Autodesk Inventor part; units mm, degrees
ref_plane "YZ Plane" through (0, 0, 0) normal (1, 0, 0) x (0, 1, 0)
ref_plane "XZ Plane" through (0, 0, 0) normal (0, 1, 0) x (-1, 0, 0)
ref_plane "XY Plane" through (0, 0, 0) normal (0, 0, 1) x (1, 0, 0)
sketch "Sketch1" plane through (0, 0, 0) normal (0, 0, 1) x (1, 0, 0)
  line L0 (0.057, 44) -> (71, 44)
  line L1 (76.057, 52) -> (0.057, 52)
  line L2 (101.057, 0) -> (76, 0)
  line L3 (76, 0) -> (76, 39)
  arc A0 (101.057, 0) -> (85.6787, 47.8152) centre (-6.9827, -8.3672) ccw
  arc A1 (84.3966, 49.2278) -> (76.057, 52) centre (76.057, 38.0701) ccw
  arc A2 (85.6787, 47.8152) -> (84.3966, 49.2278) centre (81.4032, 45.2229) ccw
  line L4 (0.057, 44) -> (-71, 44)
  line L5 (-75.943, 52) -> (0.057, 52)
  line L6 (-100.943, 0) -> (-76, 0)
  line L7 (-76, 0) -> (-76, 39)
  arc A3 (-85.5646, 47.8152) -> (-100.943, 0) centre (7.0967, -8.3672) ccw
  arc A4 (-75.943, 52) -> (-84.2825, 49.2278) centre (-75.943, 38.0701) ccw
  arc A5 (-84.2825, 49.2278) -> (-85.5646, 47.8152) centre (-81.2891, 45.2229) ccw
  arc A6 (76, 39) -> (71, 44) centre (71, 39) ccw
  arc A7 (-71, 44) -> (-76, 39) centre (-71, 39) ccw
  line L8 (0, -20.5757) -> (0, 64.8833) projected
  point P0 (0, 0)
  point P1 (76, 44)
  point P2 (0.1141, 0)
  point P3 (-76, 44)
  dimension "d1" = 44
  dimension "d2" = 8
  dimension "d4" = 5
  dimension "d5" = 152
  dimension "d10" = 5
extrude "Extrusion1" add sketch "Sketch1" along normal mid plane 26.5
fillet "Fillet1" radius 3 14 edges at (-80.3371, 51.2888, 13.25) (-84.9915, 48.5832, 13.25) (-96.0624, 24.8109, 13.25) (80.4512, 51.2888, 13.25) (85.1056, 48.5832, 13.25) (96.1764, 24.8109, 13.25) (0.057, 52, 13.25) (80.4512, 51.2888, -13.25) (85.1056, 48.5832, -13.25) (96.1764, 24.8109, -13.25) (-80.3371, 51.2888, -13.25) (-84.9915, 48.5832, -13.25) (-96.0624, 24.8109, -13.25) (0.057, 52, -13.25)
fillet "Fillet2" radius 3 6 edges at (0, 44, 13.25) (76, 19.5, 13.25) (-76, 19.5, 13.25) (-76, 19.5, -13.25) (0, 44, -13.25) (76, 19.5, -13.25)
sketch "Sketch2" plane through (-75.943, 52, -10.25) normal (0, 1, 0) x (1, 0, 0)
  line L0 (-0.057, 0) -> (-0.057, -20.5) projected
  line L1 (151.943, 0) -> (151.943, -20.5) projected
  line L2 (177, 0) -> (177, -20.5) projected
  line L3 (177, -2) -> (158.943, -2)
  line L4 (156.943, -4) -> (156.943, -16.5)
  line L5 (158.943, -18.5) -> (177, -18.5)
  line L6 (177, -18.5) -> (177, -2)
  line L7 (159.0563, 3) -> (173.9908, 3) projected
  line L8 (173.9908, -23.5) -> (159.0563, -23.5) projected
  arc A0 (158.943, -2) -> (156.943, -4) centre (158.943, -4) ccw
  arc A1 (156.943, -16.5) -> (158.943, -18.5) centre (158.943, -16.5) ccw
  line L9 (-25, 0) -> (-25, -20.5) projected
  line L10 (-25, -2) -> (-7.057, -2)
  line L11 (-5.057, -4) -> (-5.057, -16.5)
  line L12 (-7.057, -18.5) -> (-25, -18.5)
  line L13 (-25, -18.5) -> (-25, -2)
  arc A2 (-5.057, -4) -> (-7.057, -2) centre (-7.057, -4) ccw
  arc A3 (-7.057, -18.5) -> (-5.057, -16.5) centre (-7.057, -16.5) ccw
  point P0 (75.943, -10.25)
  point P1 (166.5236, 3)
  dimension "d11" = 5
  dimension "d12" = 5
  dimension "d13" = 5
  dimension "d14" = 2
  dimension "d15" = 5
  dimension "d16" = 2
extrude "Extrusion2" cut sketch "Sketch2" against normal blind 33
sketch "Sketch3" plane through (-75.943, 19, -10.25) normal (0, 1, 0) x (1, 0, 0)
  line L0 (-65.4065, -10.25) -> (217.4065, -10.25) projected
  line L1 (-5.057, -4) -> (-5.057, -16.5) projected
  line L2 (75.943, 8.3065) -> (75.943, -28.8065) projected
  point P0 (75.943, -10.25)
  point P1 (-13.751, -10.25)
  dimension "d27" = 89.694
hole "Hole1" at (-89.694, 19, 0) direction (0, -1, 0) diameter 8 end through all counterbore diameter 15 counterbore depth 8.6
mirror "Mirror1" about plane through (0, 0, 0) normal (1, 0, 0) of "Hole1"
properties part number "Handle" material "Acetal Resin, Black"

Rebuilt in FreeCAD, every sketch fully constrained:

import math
import FreeCAD as App
import Part
import Sketcher

V = App.Vector
Q = App.Units.Quantity


def edges_at(feature, points):
    """Names of the edges that pass closest to the given points."""
    edges = feature.Shape.Edges
    near = lambda p: min(range(len(edges)), key=lambda i: edges[i].distToShape(Part.Vertex(*p))[0])
    return sorted({f"Edge{near(p) + 1}" for p in points})

doc = App.newDocument("Part")
body = doc.addObject("PartDesign::Body", "Body")

# Sketch on XY plane
sketch1 = body.newObject("Sketcher::SketchObject", "Sketch")
sketch1.AttachmentSupport = (doc.getObject("XY_Plane"), [""])
sketch1.MapMode = "FlatFace"
sketch1.addGeometry([
    Part.ArcOfCircle(Part.Circle(V(71, 39, 0), V(0, 0, 1), 5), math.radians(0), math.radians(90)),  # 0
    Part.LineSegment(V(76, 39, 0), V(76, 0, 0)),  # 1
    Part.LineSegment(V(76, 0, 0), V(101.057, 0, 0)),  # 2
    Part.ArcOfCircle(Part.Circle(V(-6.9827, -8.3672, 0), V(0, 0, 1), 108.363217), math.radians(4.428467), math.radians(31.229244)),  # 3
    Part.ArcOfCircle(Part.Circle(V(81.4032, 45.2229, 0), V(0, 0, 1), 4.999992), math.radians(31.229064), math.radians(53.224297)),  # 4
    Part.ArcOfCircle(Part.Circle(V(76.057, 38.0701, 0), V(0, 0, 1), 13.929939), math.radians(53.224458), math.radians(90)),  # 5
    Part.LineSegment(V(76.057, 52, 0), V(-75.943, 52, 0)),  # 6
    Part.ArcOfCircle(Part.Circle(V(-75.943, 38.0701, 0), V(0, 0, 1), 13.9299), math.radians(90), math.radians(126.775213)),  # 7
    Part.ArcOfCircle(Part.Circle(V(-81.2891, 45.2229, 0), V(0, 0, 1), 4.999967), math.radians(126.775703), math.radians(148.770936)),  # 8
    Part.ArcOfCircle(Part.Circle(V(7.0967, -8.3672, 0), V(0, 0, 1), 108.363179), math.radians(148.770729), math.radians(175.571533)),  # 9
    Part.LineSegment(V(-100.943, 0, 0), V(-76, 0, 0)),  # 10
    Part.LineSegment(V(-76, 0, 0), V(-76, 39, 0)),  # 11
    Part.ArcOfCircle(Part.Circle(V(-71, 39, 0), V(0, 0, 1), 5), math.radians(90), math.radians(180)),  # 12
    Part.LineSegment(V(-71, 44, 0), V(71, 44, 0)),  # 13
], False)
sketch1.addConstraint([
    Sketcher.Constraint("Tangent", 0, 1, 1, 1),
    Sketcher.Constraint("Coincident", 1, 2, 2, 1),
    Sketcher.Constraint("Coincident", 2, 2, 3, 1),
    Sketcher.Constraint("Tangent", 3, 2, 4, 1),
    Sketcher.Constraint("Tangent", 4, 2, 5, 1),
    Sketcher.Constraint("Tangent", 5, 2, 6, 1),
    Sketcher.Constraint("Tangent", 6, 2, 7, 1),
    Sketcher.Constraint("Tangent", 7, 2, 8, 1),
    Sketcher.Constraint("Tangent", 8, 2, 9, 1),
    Sketcher.Constraint("Coincident", 9, 2, 10, 1),
    Sketcher.Constraint("Coincident", 10, 2, 11, 1),
    Sketcher.Constraint("Tangent", 11, 2, 12, 2),
    Sketcher.Constraint("Tangent", 12, 1, 13, 1),
    Sketcher.Constraint("Tangent", 13, 2, 0, 2),
    Sketcher.Constraint("Vertical", 1),
    Sketcher.Constraint("Horizontal", 2),
    Sketcher.Constraint("Horizontal", 6),
    Sketcher.Constraint("Horizontal", 10),
    Sketcher.Constraint("Vertical", 11),
    Sketcher.Constraint("Horizontal", 13),
    Sketcher.Constraint("Equal", 0, 4),
    Sketcher.Constraint("Equal", 5, 7),
    Sketcher.Constraint("Equal", 4, 8),
    Sketcher.Constraint("Equal", 3, 9),
    Sketcher.Constraint("Equal", 8, 12),
    Sketcher.Constraint("Symmetric", 1, 2, 10, 2, -1, 1),
    Sketcher.Constraint("PointOnObject", 1, 2, -1),
    Sketcher.Constraint("Horizontal", 4, 3, 8, 3),
    Sketcher.Constraint("Horizontal", 3, 3, 9, 3),
    Sketcher.Constraint("Radius", 0, Q("5 mm")),
    Sketcher.Constraint("DistanceX", 6, 2, 6, 1, Q("152 mm")),
    Sketcher.Constraint("DistanceY", -1, 1, 12, 1, Q("44 mm")),
    Sketcher.Constraint("DistanceY", 12, 1, 6, 2, Q("8 mm")),
    Sketcher.Constraint("DistanceX", 13, 1, 13, 2, Q("142 mm")),
    Sketcher.Constraint("Radius", 5, Q("13.93 mm")),
    Sketcher.Constraint("DistanceX", 5, 3, 2, 2, Q("25 mm")),
    Sketcher.Constraint("Radius", 3, Q("108.3632 mm")),
    Sketcher.Constraint("DistanceX", 2, 1, 2, 2, Q("25.057 mm")),
    Sketcher.Constraint("DistanceY", 3, 3, 4, 3, Q("53.59 mm")),
])
pad1 = body.newObject("PartDesign::Pad", "Pad")
pad1.Profile = sketch1
pad1.Length = 26.5
pad1.Midplane = True
doc.recompute()

fillet = body.newObject("PartDesign::Fillet", "Fillet")
fillet.Base = (pad1, edges_at(pad1, [
    (-80.337, 51.289, 13.25),
    (-84.992, 48.583, 13.25),
    (-96.062, 24.811, 13.25),
    (80.451, 51.289, 13.25),
    (85.106, 48.583, 13.25),
    (96.176, 24.811, 13.25),
    (0.057, 52, 13.25),
    (80.451, 51.289, -13.25),
    (85.106, 48.583, -13.25),
    (96.176, 24.811, -13.25),
    (-80.337, 51.289, -13.25),
    (-84.992, 48.583, -13.25),
    (-96.062, 24.811, -13.25),
    (0.057, 52, -13.25),
]))
fillet.Radius = 3
doc.recompute()

fillet2 = body.newObject("PartDesign::Fillet", "Fillet001")
fillet2.Base = (fillet, edges_at(fillet, [
    (0, 44, 13.25),
    (76, 19.5, 13.25),
    (-76, 19.5, 13.25),
    (-76, 19.5, -13.25),
    (0, 44, -13.25),
    (76, 19.5, -13.25),
]))
fillet2.Radius = 3

# Sketch on XZ plane
sketch2 = body.newObject("Sketcher::SketchObject", "Sketch001")
sketch2.AttachmentSupport = (doc.getObject("XZ_Plane"), [""])
sketch2.MapMode = "FlatFace"
sketch2.AttachmentOffset = App.Placement(V(0, 0, -52), App.Rotation())
sketch2.addGeometry([
    Part.LineSegment(V(101.057, 8.25, 0), V(101.057, -8.25, 0)),  # 0
    Part.LineSegment(V(101.057, -8.25, 0), V(83, -8.25, 0)),  # 1
    Part.ArcOfCircle(Part.Circle(V(83, -6.25, 0), V(0, 0, 1), 2), math.radians(180), math.radians(270)),  # 2
    Part.LineSegment(V(81, -6.25, 0), V(81, 6.25, 0)),  # 3
    Part.ArcOfCircle(Part.Circle(V(83, 6.25, 0), V(0, 0, 1), 2), math.radians(90), math.radians(180)),  # 4
    Part.LineSegment(V(83, 8.25, 0), V(101.057, 8.25, 0)),  # 5
    Part.LineSegment(V(-83, -8.25, 0), V(-100.943, -8.25, 0)),  # 6
    Part.LineSegment(V(-100.943, -8.25, 0), V(-100.943, 8.25, 0)),  # 7
    Part.LineSegment(V(-100.943, 8.25, 0), V(-83, 8.25, 0)),  # 8
    Part.ArcOfCircle(Part.Circle(V(-83, 6.25, 0), V(0, 0, 1), 2), math.radians(0), math.radians(90)),  # 9
    Part.LineSegment(V(-81, 6.25, 0), V(-81, -6.25, 0)),  # 10
    Part.ArcOfCircle(Part.Circle(V(-83, -6.25, 0), V(0, 0, 1), 2), math.radians(-90), math.radians(0)),  # 11
], False)
sketch2.addConstraint([
    Sketcher.Constraint("Coincident", 0, 2, 1, 1),
    Sketcher.Constraint("Tangent", 1, 2, 2, 2),
    Sketcher.Constraint("Tangent", 2, 1, 3, 1),
    Sketcher.Constraint("Tangent", 3, 2, 4, 2),
    Sketcher.Constraint("Tangent", 4, 1, 5, 1),
    Sketcher.Constraint("Coincident", 5, 2, 0, 1),
    Sketcher.Constraint("Coincident", 6, 2, 7, 1),
    Sketcher.Constraint("Coincident", 7, 2, 8, 1),
    Sketcher.Constraint("Tangent", 8, 2, 9, 2),
    Sketcher.Constraint("Tangent", 9, 1, 10, 1),
    Sketcher.Constraint("Tangent", 10, 2, 11, 2),
    Sketcher.Constraint("Tangent", 11, 1, 6, 1),
    Sketcher.Constraint("Vertical", 0),
    Sketcher.Constraint("Horizontal", 1),
    Sketcher.Constraint("Vertical", 3),
    Sketcher.Constraint("Horizontal", 5),
    Sketcher.Constraint("Horizontal", 6),
    Sketcher.Constraint("Vertical", 7),
    Sketcher.Constraint("Horizontal", 8),
    Sketcher.Constraint("Vertical", 10),
    Sketcher.Constraint("Equal", 2, 4),
    Sketcher.Constraint("Equal", 4, 9),
    Sketcher.Constraint("Equal", 9, 11),
    Sketcher.Constraint("Symmetric", 2, 3, 9, 3, -1, 1),
    Sketcher.Constraint("Horizontal", 4, 3, 9, 3),
    Sketcher.Constraint("Horizontal", 2, 3, 11, 3),
    Sketcher.Constraint("Radius", 2, Q("2 mm")),
    Sketcher.Constraint("DistanceY", 0, 2, 0, 1, Q("16.5 mm")),
    Sketcher.Constraint("DistanceX", -1, 1, 2, 3, Q("83 mm")),
    Sketcher.Constraint("DistanceX", 1, 2, 1, 1, Q("18.057 mm")),
    Sketcher.Constraint("DistanceX", 6, 2, 6, 1, Q("17.943 mm")),
])
pocket1 = body.newObject("PartDesign::Pocket", "Pocket")
pocket1.Profile = sketch2
pocket1.Length = 33
pocket1.Reversed = True

# Sketch on XZ plane
sketch3 = body.newObject("Sketcher::SketchObject", "Sketch002")
sketch3.AttachmentSupport = (doc.getObject("XZ_Plane"), [""])
sketch3.MapMode = "FlatFace"
sketch3.AttachmentOffset = App.Placement(V(0, 0, -19), App.Rotation())
sketch3.addGeometry(Part.Circle(V(-89.694, 0, 0), V(0, 0, 1), 4), False)
sketch3.addConstraint([
    Sketcher.Constraint("PointOnObject", 0, 3, -1),
    Sketcher.Constraint("Diameter", 0, Q("8 mm")),
    Sketcher.Constraint("DistanceX", 0, 3, -1, 1, Q("89.694 mm")),
])
doc.recompute()
hole = body.newObject("PartDesign::Hole", "Hole")
hole.Profile = sketch3
hole.ThreadType = "None"
hole.Diameter = 8
hole.DepthType = "ThroughAll"
hole.HoleCutType = "Counterbore"
hole.HoleCutDiameter = 15
hole.HoleCutDepth = 8.6
hole.Reversed = True
doc.recompute()

mirrored = body.newObject("PartDesign::Mirrored", "Mirrored")
mirrored.Originals = [hole]
mirrored.MirrorPlane = (doc.getObject("YZ_Plane"), [""])
body.Tip = mirrored

doc.recompute()
